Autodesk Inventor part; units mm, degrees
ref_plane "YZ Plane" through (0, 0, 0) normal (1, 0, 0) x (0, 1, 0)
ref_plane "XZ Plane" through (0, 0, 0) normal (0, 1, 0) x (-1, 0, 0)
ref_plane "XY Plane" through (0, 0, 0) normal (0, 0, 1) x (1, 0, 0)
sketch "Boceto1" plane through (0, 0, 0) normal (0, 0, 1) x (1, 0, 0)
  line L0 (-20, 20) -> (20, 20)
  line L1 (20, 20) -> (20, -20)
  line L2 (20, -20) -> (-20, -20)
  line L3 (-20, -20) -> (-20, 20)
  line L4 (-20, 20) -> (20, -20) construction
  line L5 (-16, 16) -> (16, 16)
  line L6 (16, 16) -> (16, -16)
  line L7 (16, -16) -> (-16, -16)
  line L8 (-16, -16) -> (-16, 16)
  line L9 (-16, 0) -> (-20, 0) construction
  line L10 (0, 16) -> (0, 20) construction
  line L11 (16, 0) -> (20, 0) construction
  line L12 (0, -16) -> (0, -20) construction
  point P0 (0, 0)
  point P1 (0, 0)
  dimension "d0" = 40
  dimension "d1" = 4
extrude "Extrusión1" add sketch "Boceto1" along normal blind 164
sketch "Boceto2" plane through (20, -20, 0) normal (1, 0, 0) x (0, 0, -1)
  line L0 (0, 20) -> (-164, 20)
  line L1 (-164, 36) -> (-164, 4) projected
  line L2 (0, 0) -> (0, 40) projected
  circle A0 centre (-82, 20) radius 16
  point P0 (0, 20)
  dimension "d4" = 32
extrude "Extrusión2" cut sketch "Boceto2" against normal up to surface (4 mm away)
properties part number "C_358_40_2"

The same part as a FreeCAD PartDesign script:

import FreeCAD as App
import Part
import Sketcher


def add_polygon(sketch, points):
    """Adds a closed chain of lines whose ends are joined by coincident constraints."""
    first, n = sketch.GeometryCount, len(points)
    for a, b in zip(points, points[1:] + points[:1]):
        sketch.addGeometry(Part.LineSegment(App.Vector(*a, 0), App.Vector(*b, 0)), False)
    for i in range(n):
        sketch.addConstraint(Sketcher.Constraint("Coincident", first + i, 2, first + (i + 1) % n, 1))

doc = App.newDocument("Part")
body = doc.addObject("PartDesign::Body", "Body")

sketch1 = body.newObject("Sketcher::SketchObject", "Sketch")
sketch1.AttachmentSupport = (doc.getObject("XY_Plane"), [""])
sketch1.MapMode = "FlatFace"
add_polygon(sketch1, [(20, 20), (-20, 20), (-20, -20), (20, -20)])
add_polygon(sketch1, [(-16, -16), (-16, 16), (16, 16), (16, -16)])
sketch1.addConstraint([
    Sketcher.Constraint("Horizontal", 0),
    Sketcher.Constraint("Vertical", 1),
    Sketcher.Constraint("Horizontal", 2),
    Sketcher.Constraint("Vertical", 3),
    Sketcher.Constraint("Vertical", 4),
    Sketcher.Constraint("Horizontal", 5),
    Sketcher.Constraint("Vertical", 6),
    Sketcher.Constraint("Horizontal", 7),
    Sketcher.Constraint("Symmetric", 0, 2, 2, 2, -1, 1),
    Sketcher.Constraint("Symmetric", 4, 2, 6, 2, -1, 1),
    Sketcher.Constraint("Equal", 2, 1),
    Sketcher.Constraint("Equal", 7, 4),
    Sketcher.Constraint("DistanceX", 0, 2, 0, 1, 40.0),
    Sketcher.Constraint("DistanceX", 0, 2, 4, 2, 4.0),
])
pad1 = body.newObject("PartDesign::Pad", "Pad")
pad1.Profile = sketch1
pad1.Length = 164

sketch2 = body.newObject("Sketcher::SketchObject", "Sketch001")
sketch2.AttachmentSupport = (doc.getObject("YZ_Plane"), [""])
sketch2.MapMode = "FlatFace"
sketch2.AttachmentOffset = App.Placement(App.Vector(0, 0, 20), App.Rotation())
sketch2.addGeometry(Part.Circle(App.Vector(0, 82, 0), App.Vector(0, 0, 1), 16), False)
sketch2.addConstraint([
    Sketcher.Constraint("PointOnObject", 0, 3, -2),
    Sketcher.Constraint("Diameter", 0, 32.0),
    Sketcher.Constraint("DistanceY", -1, 1, 0, 3, 82.0),
])
pocket1 = body.newObject("PartDesign::Pocket", "Pocket")
pocket1.Profile = sketch2
pocket1.Length = 4

doc.recompute()
